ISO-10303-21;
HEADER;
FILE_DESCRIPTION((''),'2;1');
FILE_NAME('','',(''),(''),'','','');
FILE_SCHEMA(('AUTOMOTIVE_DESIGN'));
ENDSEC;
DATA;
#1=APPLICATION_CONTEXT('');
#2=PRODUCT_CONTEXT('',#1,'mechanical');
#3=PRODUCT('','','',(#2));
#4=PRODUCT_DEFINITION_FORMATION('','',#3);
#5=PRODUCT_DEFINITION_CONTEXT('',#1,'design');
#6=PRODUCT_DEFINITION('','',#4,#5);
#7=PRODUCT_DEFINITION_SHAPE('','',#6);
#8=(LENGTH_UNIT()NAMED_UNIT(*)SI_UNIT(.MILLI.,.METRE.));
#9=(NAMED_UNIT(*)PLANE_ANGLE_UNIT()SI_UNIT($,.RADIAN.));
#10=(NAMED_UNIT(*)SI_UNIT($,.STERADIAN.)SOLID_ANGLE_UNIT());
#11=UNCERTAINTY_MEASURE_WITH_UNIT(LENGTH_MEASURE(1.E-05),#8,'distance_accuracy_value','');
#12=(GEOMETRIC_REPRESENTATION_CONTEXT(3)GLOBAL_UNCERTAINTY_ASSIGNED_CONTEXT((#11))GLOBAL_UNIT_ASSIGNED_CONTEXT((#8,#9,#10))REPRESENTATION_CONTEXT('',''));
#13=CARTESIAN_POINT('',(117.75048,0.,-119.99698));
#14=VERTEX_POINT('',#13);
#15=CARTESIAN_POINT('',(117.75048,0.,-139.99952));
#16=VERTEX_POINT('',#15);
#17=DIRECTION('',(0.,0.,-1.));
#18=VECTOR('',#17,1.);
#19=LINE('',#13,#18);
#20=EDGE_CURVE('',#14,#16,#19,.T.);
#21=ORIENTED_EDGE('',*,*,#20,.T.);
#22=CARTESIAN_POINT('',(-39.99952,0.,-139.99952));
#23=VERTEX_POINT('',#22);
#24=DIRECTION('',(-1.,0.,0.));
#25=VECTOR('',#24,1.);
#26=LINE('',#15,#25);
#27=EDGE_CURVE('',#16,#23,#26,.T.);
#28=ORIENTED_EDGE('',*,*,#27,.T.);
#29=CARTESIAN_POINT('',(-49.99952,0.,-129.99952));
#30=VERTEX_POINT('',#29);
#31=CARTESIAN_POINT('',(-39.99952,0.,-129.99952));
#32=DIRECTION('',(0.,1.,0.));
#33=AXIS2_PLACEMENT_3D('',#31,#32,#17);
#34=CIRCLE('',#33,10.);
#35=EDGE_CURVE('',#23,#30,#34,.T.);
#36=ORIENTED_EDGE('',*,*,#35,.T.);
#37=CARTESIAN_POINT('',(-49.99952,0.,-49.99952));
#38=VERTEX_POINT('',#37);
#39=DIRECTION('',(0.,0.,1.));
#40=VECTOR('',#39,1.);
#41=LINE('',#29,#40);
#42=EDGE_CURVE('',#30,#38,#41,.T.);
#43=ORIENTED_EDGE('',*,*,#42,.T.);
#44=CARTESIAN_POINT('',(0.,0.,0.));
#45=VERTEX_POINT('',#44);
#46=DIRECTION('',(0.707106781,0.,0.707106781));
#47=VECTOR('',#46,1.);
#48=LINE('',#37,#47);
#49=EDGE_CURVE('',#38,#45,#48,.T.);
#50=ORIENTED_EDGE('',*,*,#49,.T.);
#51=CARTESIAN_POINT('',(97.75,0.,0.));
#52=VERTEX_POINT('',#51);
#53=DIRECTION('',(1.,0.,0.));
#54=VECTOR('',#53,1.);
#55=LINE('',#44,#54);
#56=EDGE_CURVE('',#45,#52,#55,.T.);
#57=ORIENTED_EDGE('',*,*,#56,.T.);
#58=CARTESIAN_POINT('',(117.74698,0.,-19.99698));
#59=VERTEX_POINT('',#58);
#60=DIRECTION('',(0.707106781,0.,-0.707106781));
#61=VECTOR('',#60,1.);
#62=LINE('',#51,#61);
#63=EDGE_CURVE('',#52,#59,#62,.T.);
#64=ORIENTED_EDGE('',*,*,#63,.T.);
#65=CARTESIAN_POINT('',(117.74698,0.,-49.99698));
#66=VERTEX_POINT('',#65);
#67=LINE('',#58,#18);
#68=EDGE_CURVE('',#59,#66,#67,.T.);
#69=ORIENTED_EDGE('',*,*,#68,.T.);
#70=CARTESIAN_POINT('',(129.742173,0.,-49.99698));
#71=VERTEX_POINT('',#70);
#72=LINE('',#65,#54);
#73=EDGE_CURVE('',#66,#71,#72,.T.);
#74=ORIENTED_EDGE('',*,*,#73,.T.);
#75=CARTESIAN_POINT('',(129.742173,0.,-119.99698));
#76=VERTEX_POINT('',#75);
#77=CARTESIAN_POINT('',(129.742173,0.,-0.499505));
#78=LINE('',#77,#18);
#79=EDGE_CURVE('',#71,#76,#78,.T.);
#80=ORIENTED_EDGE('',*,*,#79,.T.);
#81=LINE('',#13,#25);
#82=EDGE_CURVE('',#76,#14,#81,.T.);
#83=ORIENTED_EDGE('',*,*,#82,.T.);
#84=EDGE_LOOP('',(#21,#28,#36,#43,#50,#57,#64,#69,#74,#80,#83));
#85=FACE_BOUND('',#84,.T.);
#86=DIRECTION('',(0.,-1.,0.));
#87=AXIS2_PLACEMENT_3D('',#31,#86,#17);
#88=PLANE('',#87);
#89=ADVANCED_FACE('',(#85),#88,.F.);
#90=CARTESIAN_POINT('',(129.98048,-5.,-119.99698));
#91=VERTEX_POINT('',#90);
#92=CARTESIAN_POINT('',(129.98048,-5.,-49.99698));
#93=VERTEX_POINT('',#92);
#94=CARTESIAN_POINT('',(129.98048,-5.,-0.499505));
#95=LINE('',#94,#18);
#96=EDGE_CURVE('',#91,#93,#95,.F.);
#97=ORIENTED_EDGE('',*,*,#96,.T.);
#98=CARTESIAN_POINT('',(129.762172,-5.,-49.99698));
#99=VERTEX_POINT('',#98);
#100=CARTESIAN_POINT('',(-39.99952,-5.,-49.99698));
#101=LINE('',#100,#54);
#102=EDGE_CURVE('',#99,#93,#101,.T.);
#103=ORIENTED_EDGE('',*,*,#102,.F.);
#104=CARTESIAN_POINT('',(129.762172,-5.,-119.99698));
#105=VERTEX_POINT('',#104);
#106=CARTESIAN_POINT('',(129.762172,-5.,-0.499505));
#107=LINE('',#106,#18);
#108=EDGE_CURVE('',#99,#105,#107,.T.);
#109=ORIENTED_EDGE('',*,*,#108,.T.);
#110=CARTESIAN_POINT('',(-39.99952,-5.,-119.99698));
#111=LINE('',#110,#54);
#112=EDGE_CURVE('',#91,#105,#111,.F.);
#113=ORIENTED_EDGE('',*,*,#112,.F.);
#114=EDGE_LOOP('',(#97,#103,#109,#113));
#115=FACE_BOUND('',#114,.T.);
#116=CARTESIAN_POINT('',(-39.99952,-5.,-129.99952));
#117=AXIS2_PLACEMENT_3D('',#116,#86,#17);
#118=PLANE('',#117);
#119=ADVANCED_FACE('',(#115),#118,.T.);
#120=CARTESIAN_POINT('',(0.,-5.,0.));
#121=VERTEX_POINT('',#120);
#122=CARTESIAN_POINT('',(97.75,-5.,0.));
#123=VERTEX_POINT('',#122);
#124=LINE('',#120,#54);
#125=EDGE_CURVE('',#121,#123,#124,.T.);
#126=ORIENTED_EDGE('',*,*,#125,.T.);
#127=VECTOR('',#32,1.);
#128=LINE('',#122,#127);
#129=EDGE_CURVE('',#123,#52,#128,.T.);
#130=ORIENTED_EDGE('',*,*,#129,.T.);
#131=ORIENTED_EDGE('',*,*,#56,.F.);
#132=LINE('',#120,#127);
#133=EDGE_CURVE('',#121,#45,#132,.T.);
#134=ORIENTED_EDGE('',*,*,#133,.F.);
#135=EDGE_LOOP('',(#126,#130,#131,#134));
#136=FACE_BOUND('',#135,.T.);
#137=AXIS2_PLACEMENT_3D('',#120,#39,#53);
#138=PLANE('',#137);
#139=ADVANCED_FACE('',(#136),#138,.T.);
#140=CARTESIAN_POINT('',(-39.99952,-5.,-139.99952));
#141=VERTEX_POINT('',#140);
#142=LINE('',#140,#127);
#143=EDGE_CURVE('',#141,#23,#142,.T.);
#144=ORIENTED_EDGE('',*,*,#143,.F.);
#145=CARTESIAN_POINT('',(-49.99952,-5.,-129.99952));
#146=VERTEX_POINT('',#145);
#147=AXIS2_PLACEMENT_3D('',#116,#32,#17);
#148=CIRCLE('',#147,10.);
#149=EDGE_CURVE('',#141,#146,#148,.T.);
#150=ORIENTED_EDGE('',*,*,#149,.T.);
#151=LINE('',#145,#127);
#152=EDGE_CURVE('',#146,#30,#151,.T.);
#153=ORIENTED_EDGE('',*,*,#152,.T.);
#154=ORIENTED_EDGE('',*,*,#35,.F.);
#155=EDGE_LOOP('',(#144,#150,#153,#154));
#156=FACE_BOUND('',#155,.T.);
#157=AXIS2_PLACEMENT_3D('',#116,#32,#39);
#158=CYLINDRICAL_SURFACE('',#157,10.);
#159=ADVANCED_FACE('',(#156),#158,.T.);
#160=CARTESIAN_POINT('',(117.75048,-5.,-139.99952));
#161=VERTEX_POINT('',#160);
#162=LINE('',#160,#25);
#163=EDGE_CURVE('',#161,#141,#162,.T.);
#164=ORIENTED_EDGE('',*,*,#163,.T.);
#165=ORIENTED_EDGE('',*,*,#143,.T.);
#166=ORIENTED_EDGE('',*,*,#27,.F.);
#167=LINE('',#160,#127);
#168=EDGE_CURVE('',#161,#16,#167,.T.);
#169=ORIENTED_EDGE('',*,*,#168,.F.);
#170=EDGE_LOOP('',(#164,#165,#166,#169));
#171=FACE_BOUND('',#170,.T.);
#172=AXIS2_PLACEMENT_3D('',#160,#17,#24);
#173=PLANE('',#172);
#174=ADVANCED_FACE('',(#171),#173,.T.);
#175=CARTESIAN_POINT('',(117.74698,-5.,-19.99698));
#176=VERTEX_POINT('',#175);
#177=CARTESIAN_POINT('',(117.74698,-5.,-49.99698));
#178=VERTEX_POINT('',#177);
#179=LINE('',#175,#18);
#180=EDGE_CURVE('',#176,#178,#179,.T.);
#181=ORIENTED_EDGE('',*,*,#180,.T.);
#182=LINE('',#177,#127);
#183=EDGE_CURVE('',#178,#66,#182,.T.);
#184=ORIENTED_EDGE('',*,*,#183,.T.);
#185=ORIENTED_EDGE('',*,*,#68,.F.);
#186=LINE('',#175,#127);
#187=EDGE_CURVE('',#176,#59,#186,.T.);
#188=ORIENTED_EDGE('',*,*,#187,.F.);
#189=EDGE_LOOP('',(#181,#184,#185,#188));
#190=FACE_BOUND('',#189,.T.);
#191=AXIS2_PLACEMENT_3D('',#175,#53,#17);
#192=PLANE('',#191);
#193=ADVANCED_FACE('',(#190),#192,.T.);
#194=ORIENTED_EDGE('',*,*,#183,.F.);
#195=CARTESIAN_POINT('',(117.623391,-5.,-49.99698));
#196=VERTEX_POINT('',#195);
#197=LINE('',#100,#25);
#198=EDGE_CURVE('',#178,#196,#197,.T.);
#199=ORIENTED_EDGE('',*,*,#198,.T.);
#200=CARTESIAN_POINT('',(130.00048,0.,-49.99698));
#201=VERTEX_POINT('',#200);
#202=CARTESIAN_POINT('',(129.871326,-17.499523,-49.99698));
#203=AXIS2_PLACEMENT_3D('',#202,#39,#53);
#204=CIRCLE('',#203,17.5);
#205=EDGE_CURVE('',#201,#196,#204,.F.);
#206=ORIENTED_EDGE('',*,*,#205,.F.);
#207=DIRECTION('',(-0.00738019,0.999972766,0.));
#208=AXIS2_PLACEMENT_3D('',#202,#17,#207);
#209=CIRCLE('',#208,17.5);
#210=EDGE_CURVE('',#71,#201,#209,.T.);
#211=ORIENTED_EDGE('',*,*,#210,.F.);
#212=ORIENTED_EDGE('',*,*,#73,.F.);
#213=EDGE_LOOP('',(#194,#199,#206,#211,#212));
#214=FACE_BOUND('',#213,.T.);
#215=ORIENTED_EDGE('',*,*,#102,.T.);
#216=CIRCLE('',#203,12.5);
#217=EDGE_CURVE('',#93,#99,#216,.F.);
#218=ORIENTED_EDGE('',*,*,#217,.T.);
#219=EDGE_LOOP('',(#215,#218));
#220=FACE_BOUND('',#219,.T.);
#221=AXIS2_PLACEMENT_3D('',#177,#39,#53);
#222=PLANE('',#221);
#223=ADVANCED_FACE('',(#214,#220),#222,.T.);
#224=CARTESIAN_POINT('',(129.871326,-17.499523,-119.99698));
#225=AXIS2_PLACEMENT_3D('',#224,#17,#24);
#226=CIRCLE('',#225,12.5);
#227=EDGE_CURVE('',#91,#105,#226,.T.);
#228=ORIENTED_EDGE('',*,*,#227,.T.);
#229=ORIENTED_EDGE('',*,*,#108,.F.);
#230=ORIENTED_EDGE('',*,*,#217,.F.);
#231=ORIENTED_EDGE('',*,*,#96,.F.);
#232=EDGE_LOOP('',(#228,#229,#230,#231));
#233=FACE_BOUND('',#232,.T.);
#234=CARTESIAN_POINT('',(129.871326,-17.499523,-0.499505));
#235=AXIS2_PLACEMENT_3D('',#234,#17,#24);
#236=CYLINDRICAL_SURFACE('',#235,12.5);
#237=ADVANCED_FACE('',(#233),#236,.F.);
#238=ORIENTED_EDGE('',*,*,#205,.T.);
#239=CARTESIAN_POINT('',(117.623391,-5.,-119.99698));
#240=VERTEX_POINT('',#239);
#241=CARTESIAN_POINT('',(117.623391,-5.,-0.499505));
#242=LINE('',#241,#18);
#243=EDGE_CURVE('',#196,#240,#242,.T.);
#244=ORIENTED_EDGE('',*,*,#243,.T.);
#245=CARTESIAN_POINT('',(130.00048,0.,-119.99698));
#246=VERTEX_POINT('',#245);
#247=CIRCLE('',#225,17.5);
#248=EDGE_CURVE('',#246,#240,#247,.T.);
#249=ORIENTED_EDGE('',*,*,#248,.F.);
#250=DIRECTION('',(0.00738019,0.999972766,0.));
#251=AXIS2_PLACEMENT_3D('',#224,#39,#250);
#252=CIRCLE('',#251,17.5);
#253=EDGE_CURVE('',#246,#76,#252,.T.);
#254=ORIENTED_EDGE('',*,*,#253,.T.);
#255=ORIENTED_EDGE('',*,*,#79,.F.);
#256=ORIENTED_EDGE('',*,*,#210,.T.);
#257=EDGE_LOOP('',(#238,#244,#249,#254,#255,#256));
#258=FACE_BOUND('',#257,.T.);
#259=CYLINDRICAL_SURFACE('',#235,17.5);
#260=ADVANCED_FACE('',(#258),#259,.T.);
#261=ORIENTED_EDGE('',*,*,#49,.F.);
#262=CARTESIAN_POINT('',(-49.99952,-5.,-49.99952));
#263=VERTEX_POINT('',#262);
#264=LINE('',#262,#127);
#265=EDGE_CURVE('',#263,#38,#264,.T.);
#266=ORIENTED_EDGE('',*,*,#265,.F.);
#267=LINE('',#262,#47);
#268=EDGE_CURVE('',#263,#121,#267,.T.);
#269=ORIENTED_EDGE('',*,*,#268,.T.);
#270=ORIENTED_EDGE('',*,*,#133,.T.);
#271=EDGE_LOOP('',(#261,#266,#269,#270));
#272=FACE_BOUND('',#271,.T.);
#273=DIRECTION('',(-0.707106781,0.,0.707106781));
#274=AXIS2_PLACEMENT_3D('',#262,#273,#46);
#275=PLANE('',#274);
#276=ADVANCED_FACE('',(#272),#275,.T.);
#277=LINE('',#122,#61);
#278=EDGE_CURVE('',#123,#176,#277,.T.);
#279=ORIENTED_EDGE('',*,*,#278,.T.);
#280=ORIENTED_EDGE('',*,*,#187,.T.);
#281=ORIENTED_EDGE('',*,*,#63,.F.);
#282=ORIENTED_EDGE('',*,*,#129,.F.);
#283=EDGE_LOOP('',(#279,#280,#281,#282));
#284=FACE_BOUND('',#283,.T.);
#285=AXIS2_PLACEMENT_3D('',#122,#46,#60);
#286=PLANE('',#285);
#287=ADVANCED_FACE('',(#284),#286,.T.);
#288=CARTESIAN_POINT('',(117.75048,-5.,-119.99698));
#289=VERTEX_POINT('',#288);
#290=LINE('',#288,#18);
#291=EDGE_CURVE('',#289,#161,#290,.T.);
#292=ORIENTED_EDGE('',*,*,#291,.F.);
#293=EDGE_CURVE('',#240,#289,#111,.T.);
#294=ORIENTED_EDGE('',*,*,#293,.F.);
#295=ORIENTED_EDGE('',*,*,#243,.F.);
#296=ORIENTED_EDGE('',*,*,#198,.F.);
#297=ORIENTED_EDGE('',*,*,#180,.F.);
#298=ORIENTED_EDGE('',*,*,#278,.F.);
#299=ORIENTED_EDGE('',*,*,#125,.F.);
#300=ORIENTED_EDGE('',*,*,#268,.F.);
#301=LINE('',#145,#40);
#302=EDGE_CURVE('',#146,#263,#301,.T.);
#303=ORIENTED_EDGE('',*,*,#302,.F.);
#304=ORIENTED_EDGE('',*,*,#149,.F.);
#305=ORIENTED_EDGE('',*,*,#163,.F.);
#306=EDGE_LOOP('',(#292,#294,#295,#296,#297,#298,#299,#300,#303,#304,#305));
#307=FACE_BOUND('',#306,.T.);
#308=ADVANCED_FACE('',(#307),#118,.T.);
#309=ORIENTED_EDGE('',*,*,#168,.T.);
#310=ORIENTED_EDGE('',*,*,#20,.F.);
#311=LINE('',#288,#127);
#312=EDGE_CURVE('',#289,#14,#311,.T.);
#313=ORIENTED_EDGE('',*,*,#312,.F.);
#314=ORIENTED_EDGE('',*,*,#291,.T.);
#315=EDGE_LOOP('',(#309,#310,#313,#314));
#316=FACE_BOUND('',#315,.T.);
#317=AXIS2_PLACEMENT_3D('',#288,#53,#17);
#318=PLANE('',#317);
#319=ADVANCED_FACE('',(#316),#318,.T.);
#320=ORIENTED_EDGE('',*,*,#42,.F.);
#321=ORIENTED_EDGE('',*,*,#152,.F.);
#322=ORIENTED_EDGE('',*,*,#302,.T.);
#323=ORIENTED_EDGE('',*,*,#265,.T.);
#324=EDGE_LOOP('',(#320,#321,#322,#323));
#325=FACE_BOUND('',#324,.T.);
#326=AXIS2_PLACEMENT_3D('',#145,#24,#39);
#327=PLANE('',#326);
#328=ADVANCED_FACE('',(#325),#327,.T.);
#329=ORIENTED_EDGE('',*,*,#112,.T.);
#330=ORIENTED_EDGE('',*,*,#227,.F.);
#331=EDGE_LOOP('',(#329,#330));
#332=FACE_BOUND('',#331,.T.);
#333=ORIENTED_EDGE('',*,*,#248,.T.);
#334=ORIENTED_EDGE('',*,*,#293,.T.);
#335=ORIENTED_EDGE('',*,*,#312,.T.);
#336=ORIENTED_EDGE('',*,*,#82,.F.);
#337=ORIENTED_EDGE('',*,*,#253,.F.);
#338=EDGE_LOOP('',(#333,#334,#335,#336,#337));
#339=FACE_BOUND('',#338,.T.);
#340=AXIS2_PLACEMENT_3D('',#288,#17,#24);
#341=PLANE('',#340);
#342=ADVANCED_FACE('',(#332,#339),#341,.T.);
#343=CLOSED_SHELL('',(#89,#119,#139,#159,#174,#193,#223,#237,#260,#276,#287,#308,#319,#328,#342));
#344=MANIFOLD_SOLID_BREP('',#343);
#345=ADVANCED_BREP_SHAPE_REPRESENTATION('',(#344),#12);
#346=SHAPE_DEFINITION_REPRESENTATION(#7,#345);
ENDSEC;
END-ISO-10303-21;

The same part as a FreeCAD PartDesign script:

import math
import FreeCAD as App
import Part
import Sketcher

V = App.Vector
Q = App.Units.Quantity

doc = App.newDocument("Part")
body = doc.addObject("PartDesign::Body", "Body")

# Sketch on XZ plane
sketch1 = doc.addObject("Sketcher::SketchObject", "Sketch")
body.addObject(sketch1)
sketch1.AttachmentSupport = (doc.XZ_Plane, [""])
sketch1.MapMode = "FlatFace"
sketch1.addGeometry([
    Part.LineSegment(V(0, 0, 0), V(98, 0, 0)),  # 0
    Part.LineSegment(V(98, 0, 0), V(118, -20, 0)),  # 1
    Part.LineSegment(V(118, -20, 0), V(118, -50, 0)),  # 2
    Part.LineSegment(V(118, -50, 0), V(130, -50, 0)),  # 3
    Part.LineSegment(V(130, -50, 0), V(130, -120, 0)),  # 4
    Part.LineSegment(V(130, -120, 0), V(118, -120, 0)),  # 5
    Part.LineSegment(V(118, -120, 0), V(118, -140, 0)),  # 6
    Part.LineSegment(V(118, -140, 0), V(-40, -140, 0)),  # 7
    Part.ArcOfCircle(Part.Circle(V(-40, -130, 0), V(0, 0, 1), 10), math.radians(180), math.radians(270)),  # 8
    Part.LineSegment(V(-50, -130, 0), V(-50, -50, 0)),  # 9
    Part.LineSegment(V(-50, -50, 0), V(0, 0, 0)),  # 10
], False)
sketch1.addConstraint([
    Sketcher.Constraint("Coincident", 0, 2, 1, 1),
    Sketcher.Constraint("Coincident", 1, 2, 2, 1),
    Sketcher.Constraint("Coincident", 2, 2, 3, 1),
    Sketcher.Constraint("Coincident", 3, 2, 4, 1),
    Sketcher.Constraint("Coincident", 4, 2, 5, 1),
    Sketcher.Constraint("Coincident", 5, 2, 6, 1),
    Sketcher.Constraint("Coincident", 6, 2, 7, 1),
    Sketcher.Constraint("Tangent", 7, 2, 8, 2),
    Sketcher.Constraint("Tangent", 8, 1, 9, 1),
    Sketcher.Constraint("Coincident", 9, 2, 10, 1),
    Sketcher.Constraint("Coincident", 10, 2, 0, 1),
    Sketcher.Constraint("Horizontal", 0),
    Sketcher.Constraint("Vertical", 2),
    Sketcher.Constraint("Horizontal", 3),
    Sketcher.Constraint("Vertical", 4),
    Sketcher.Constraint("Horizontal", 5),
    Sketcher.Constraint("Vertical", 6),
    Sketcher.Constraint("Horizontal", 7),
    Sketcher.Constraint("Vertical", 9),
    Sketcher.Constraint("Coincident", 10, 2, -1, 1),
    Sketcher.Constraint("Perpendicular", 1, 10),
    Sketcher.Constraint("Radius", 8, 10.0),
    Sketcher.Constraint("DistanceY", 2, 2, 2, 1, 30.0),
    Sketcher.Constraint("DistanceY", 4, 2, 4, 1, 70.0),
    Sketcher.Constraint("DistanceY", 9, 1, 9, 2, 80.0),
    Sketcher.Constraint("Angle", 1, Q("-45 deg")),
    Sketcher.Constraint("DistanceX", 8, 3, 3, 2, 170.0),
    Sketcher.Constraint("DistanceX", 0, 1, 0, 2, 97.75),
    Sketcher.Constraint("DistanceX", 5, 2, 5, 1, 12.25),
    Sketcher.Constraint("Distance", 1, 28.28),
    Sketcher.Constraint("Distance", 10, 70.71),
])
pad1 = doc.addObject("PartDesign::Pad", "Pad")
body.addObject(pad1)
pad1.Profile = sketch1
pad1.Length = 5

# Sketch on XY plane
sketch2 = doc.addObject("Sketcher::SketchObject", "Sketch001")
body.addObject(sketch2)
sketch2.AttachmentSupport = (doc.XY_Plane, [""])
sketch2.MapMode = "FlatFace"
sketch2.AttachmentOffset = App.Placement(V(0, 0, -119.99698), App.Rotation())
sketch2.addGeometry([
    Part.Circle(V(130, -17, 0), V(0, 0, 1), 18),
    Part.Circle(V(130, -17, 0), V(0, 0, 1), 12),
], False)
sketch2.addConstraint([
    Sketcher.Constraint("Coincident", 1, 3, 0, 3),
    Sketcher.Constraint("Diameter", 0, 35.0),
    Sketcher.Constraint("Diameter", 1, 25.0),
    Sketcher.Constraint("DistanceX", -1, 1, 0, 3, 129.871326),
    Sketcher.Constraint("DistanceY", 0, 3, -1, 1, 17.499523),
])
pad2 = doc.addObject("PartDesign::Pad", "Pad001")
body.addObject(pad2)
pad2.Profile = sketch2
pad2.Length = 70

doc.recompute()
